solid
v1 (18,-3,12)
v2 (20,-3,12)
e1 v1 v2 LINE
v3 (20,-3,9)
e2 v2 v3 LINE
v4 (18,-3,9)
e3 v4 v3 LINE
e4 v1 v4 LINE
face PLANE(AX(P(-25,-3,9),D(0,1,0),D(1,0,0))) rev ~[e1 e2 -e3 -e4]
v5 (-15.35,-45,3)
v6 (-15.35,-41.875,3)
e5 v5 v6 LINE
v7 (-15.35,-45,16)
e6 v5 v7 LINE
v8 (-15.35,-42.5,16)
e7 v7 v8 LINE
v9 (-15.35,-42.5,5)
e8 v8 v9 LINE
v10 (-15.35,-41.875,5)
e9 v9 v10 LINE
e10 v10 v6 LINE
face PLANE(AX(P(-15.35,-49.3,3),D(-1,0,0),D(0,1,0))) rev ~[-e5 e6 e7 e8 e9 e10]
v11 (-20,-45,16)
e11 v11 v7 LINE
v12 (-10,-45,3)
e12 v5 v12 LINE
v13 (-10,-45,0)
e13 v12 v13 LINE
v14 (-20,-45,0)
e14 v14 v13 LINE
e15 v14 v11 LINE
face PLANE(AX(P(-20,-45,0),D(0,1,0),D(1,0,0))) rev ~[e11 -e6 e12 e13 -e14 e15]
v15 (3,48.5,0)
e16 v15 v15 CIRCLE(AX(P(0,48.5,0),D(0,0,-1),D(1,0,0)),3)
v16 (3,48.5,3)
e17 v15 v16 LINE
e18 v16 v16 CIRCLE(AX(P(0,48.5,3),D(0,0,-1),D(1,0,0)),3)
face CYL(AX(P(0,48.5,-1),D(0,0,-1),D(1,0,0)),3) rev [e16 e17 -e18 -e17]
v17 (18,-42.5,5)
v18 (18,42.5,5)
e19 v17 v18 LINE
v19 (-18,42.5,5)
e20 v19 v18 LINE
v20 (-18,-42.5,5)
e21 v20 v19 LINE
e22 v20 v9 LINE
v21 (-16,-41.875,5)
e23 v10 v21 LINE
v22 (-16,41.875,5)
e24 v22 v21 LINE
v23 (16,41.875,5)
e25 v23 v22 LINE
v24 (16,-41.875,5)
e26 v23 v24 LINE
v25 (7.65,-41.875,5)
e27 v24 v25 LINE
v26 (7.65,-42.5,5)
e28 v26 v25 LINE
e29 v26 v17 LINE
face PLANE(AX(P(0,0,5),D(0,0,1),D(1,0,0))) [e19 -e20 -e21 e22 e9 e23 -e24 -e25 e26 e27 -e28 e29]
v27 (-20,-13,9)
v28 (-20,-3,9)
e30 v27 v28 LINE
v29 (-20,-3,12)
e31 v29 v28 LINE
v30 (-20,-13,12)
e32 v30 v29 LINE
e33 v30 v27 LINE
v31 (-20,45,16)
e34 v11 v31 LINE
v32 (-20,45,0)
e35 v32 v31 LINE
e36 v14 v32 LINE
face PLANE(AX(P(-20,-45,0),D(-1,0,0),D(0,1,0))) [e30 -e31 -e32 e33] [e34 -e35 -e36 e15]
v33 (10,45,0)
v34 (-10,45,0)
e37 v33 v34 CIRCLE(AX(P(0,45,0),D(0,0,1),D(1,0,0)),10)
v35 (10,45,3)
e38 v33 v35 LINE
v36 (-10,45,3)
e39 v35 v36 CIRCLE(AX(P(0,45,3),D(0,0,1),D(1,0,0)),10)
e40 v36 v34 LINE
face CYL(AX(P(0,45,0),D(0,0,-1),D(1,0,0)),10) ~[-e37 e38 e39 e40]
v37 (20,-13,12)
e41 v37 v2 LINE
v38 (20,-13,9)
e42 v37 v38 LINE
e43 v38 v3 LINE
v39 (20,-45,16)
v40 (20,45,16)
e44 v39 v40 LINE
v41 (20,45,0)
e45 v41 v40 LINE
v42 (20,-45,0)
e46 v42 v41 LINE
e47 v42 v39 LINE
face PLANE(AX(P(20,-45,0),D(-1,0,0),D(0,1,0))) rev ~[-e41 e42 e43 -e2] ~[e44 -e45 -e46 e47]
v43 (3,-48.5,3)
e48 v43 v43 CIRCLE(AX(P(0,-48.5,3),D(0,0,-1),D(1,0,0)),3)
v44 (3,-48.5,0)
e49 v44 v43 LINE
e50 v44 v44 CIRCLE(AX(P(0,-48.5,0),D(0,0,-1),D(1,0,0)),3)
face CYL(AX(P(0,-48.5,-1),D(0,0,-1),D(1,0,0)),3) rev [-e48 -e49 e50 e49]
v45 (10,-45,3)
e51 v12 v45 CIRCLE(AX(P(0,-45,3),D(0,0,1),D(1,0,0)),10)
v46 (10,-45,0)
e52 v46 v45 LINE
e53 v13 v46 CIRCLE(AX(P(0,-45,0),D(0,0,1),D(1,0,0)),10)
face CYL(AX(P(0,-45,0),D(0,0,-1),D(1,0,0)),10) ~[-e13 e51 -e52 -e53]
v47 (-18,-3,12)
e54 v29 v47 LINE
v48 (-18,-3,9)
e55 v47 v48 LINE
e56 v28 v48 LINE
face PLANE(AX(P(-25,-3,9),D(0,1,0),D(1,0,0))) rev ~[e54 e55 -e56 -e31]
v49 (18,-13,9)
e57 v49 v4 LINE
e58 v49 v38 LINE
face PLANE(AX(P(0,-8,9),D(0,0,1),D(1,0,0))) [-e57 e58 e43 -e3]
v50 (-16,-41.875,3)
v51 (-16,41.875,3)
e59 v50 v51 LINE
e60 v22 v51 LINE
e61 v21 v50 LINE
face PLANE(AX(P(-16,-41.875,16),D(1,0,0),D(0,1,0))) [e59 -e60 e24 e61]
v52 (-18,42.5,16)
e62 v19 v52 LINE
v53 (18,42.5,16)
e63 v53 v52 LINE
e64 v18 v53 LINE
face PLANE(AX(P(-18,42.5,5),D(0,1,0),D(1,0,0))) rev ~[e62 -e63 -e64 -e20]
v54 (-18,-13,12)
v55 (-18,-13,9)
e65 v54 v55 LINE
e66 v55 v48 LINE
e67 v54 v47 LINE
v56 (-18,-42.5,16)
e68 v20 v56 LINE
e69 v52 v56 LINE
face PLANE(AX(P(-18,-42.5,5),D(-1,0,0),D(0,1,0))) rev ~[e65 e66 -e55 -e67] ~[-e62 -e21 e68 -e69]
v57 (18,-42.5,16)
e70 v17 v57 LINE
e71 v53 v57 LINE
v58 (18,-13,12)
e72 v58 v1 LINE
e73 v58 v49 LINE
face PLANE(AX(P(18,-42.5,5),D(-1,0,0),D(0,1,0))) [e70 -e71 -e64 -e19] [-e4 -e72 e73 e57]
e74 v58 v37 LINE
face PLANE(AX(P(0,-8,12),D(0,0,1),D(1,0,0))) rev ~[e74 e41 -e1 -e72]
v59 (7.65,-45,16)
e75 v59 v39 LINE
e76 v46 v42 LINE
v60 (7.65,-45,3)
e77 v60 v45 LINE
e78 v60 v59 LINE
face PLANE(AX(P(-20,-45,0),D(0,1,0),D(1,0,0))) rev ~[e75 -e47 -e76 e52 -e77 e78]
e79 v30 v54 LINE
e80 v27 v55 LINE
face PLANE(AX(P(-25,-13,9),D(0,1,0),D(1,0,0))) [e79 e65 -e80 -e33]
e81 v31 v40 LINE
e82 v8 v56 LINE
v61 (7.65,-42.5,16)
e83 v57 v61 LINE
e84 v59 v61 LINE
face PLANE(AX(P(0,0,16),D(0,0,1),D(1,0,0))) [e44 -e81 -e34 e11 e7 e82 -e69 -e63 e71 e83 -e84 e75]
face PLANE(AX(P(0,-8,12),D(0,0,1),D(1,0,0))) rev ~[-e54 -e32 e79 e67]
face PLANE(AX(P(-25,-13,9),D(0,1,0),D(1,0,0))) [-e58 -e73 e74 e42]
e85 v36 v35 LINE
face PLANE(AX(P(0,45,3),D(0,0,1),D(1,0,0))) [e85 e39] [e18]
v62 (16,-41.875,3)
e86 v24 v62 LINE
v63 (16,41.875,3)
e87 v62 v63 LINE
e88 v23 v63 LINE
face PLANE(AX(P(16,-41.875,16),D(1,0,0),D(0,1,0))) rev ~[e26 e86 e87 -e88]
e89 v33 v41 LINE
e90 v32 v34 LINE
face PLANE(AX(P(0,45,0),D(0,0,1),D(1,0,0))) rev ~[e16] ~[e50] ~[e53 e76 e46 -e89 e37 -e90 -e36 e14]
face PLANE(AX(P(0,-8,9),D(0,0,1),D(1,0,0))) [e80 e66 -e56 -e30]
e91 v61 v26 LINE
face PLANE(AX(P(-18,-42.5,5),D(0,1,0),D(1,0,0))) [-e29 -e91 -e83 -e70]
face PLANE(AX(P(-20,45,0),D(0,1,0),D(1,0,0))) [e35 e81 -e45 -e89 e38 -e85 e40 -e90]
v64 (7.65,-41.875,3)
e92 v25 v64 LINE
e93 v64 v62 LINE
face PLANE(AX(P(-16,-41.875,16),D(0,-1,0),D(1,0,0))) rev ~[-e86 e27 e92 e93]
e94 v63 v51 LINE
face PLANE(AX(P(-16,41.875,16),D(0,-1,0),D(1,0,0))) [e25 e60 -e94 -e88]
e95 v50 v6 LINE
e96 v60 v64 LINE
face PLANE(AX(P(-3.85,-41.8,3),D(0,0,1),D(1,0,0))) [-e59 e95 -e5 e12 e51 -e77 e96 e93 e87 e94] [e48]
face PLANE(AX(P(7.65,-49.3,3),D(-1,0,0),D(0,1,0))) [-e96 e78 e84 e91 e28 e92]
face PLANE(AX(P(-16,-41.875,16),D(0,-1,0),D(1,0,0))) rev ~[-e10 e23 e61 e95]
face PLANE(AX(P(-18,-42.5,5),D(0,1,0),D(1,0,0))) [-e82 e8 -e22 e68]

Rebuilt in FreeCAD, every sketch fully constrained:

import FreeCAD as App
import Part
import Sketcher

V = App.Vector


def add_polygon(sketch, points):
    """Adds a closed chain of lines whose ends are joined by coincident constraints."""
    first, n = sketch.GeometryCount, len(points)
    for a, b in zip(points, points[1:] + points[:1]):
        sketch.addGeometry(Part.LineSegment(App.Vector(*a, 0), App.Vector(*b, 0)), False)
    for i in range(n):
        sketch.addConstraint(Sketcher.Constraint("Coincident", first + i, 2, first + (i + 1) % n, 1))

doc = App.newDocument("Part")
body = doc.addObject("PartDesign::Body", "Body")

# Sketch on XY plane
sketch1 = body.newObject("Sketcher::SketchObject", "Sketch")
sketch1.AttachmentSupport = (doc.getObject("XY_Plane"), [""])
sketch1.MapMode = "FlatFace"
sketch1.AttachmentOffset = App.Placement(V(0, 0, 9), App.Rotation())
add_polygon(sketch1, [(-25, -3), (-25, -13), (25, -13), (25, -3)])  # lines 0-3
sketch1.addConstraint(Sketcher.Constraint("Vertical", 0))
sketch1.addConstraint(Sketcher.Constraint("Horizontal", 1))
sketch1.addConstraint(Sketcher.Constraint("Vertical", 2))
sketch1.addConstraint(Sketcher.Constraint("Horizontal", 3))
sketch1.addConstraint(Sketcher.Constraint("DistanceX", 1, 1, 1, 2, 50.0))
sketch1.addConstraint(Sketcher.Constraint("DistanceY", 0, 2, 0, 1, 10.0))
sketch1.addConstraint(Sketcher.Constraint("DistanceX", 0, 2, -1, 1, 25.0))
sketch1.addConstraint(Sketcher.Constraint("DistanceY", 0, 2, -1, 1, 13.0))
pad1 = body.newObject("PartDesign::Pad", "Pad")
pad1.Profile = sketch1
pad1.Length = 3
body2 = doc.addObject("PartDesign::Body", "Body001")

# Sketch on XY plane
sketch2 = body2.newObject("Sketcher::SketchObject", "Sketch001")
sketch2.AttachmentSupport = (doc.getObject("XY_Plane001"), [""])
sketch2.MapMode = "FlatFace"
sketch2.AttachmentOffset = App.Placement(V(0, 0, -1), App.Rotation())
sketch2.addGeometry(Part.Circle(V(0, -48.5, 0), V(0, 0, 1), 3), False)
sketch2.addConstraint(Sketcher.Constraint("PointOnObject", 0, 3, -2))
sketch2.addConstraint(Sketcher.Constraint("Diameter", 0, 6.0))
sketch2.addConstraint(Sketcher.Constraint("DistanceY", 0, 3, -1, 1, 48.5))
pad2 = body2.newObject("PartDesign::Pad", "Pad001")
pad2.Profile = sketch2
pad2.Length = 5
body3 = doc.addObject("PartDesign::Body", "Body002")

# Sketch on XY plane
sketch3 = body3.newObject("Sketcher::SketchObject", "Sketch002")
sketch3.AttachmentSupport = (doc.getObject("XY_Plane002"), [""])
sketch3.MapMode = "FlatFace"
sketch3.addGeometry(Part.Circle(V(0, -45, 0), V(0, 0, 1), 10), False)
sketch3.addConstraint(Sketcher.Constraint("PointOnObject", 0, 3, -2))
sketch3.addConstraint(Sketcher.Constraint("Diameter", 0, 20.0))
sketch3.addConstraint(Sketcher.Constraint("DistanceY", 0, 3, -1, 1, 45.0))
pad3 = body3.newObject("PartDesign::Pad", "Pad002")
pad3.Profile = sketch3
pad3.Length = 3
doc.recompute()

boolean = body3.newObject("PartDesign::Boolean", "Boolean")
boolean.Type = "Cut"
boolean.addObjects([body2])
body4 = doc.addObject("PartDesign::Body", "Body003")

# Sketch on XY plane
sketch4 = body4.newObject("Sketcher::SketchObject", "Sketch003")
sketch4.AttachmentSupport = (doc.getObject("XY_Plane003"), [""])
sketch4.MapMode = "FlatFace"
sketch4.AttachmentOffset = App.Placement(V(0, 0, -1), App.Rotation())
sketch4.addGeometry(Part.Circle(V(0, 48.5, 0), V(0, 0, 1), 3), False)
sketch4.addConstraint(Sketcher.Constraint("PointOnObject", 0, 3, -2))
sketch4.addConstraint(Sketcher.Constraint("Diameter", 0, 6.0))
sketch4.addConstraint(Sketcher.Constraint("DistanceY", -1, 1, 0, 3, 48.5))
pad4 = body4.newObject("PartDesign::Pad", "Pad003")
pad4.Profile = sketch4
pad4.Length = 5
body5 = doc.addObject("PartDesign::Body", "Body004")

# Sketch on XY plane
sketch5 = body5.newObject("Sketcher::SketchObject", "Sketch004")
sketch5.AttachmentSupport = (doc.getObject("XY_Plane004"), [""])
sketch5.MapMode = "FlatFace"
sketch5.addGeometry(Part.Circle(V(0, 45, 0), V(0, 0, 1), 10), False)
sketch5.addConstraint(Sketcher.Constraint("PointOnObject", 0, 3, -2))
sketch5.addConstraint(Sketcher.Constraint("Diameter", 0, 20.0))
sketch5.addConstraint(Sketcher.Constraint("DistanceY", -1, 1, 0, 3, 45.0))
pad5 = body5.newObject("PartDesign::Pad", "Pad004")
pad5.Profile = sketch5
pad5.Length = 3
doc.recompute()

boolean2 = body5.newObject("PartDesign::Boolean", "Boolean001")
boolean2.Type = "Cut"
boolean2.addObjects([body4])
body6 = doc.addObject("PartDesign::Body", "Body005")

# Sketch on XY plane
sketch6 = body6.newObject("Sketcher::SketchObject", "Sketch005")
sketch6.AttachmentSupport = (doc.getObject("XY_Plane005"), [""])
sketch6.MapMode = "FlatFace"
sketch6.AttachmentOffset = App.Placement(V(0, 0, 5), App.Rotation())
add_polygon(sketch6, [(-18, 42), (-18, -42), (18, -42), (18, 42)])  # lines 0-3
sketch6.addConstraint(Sketcher.Constraint("Vertical", 0))
sketch6.addConstraint(Sketcher.Constraint("Horizontal", 1))
sketch6.addConstraint(Sketcher.Constraint("Vertical", 2))
sketch6.addConstraint(Sketcher.Constraint("Horizontal", 3))
sketch6.addConstraint(Sketcher.Constraint("Symmetric", 0, 2, 2, 2, -1, 1))
sketch6.addConstraint(Sketcher.Constraint("DistanceX", 1, 1, 1, 2, 36.0))
sketch6.addConstraint(Sketcher.Constraint("DistanceY", 0, 2, 0, 1, 85.0))
pad6 = body6.newObject("PartDesign::Pad", "Pad005")
pad6.Profile = sketch6
pad6.Length = 15
body7 = doc.addObject("PartDesign::Body", "Body006")

# Sketch on XY plane
sketch7 = body7.newObject("Sketcher::SketchObject", "Sketch006")
sketch7.AttachmentSupport = (doc.getObject("XY_Plane006"), [""])
sketch7.MapMode = "FlatFace"
sketch7.AttachmentOffset = App.Placement(V(0, 0, 3), App.Rotation())
add_polygon(sketch7, [(-15, -34), (-15, -49), (8, -49), (8, -34)])  # lines 0-3
sketch7.addConstraint(Sketcher.Constraint("Vertical", 0))
sketch7.addConstraint(Sketcher.Constraint("Horizontal", 1))
sketch7.addConstraint(Sketcher.Constraint("Vertical", 2))
sketch7.addConstraint(Sketcher.Constraint("Horizontal", 3))
sketch7.addConstraint(Sketcher.Constraint("DistanceX", 1, 1, 1, 2, 23.0))
sketch7.addConstraint(Sketcher.Constraint("DistanceY", 0, 2, 0, 1, 15.0))
sketch7.addConstraint(Sketcher.Constraint("DistanceY", 0, 2, -1, 1, 49.3))
sketch7.addConstraint(Sketcher.Constraint("DistanceX", 0, 2, -1, 1, 15.35))
pad7 = body7.newObject("PartDesign::Pad", "Pad006")
pad7.Profile = sketch7
pad7.Length = 13
body8 = doc.addObject("PartDesign::Body", "Body007")

# Sketch on XY plane
sketch8 = body8.newObject("Sketcher::SketchObject", "Sketch007")
sketch8.AttachmentSupport = (doc.getObject("XY_Plane007"), [""])
sketch8.MapMode = "FlatFace"
add_polygon(sketch8, [(-20, 45), (-20, -45), (20, -45), (20, 45)])  # lines 0-3
sketch8.addConstraint(Sketcher.Constraint("Vertical", 0))
sketch8.addConstraint(Sketcher.Constraint("Horizontal", 1))
sketch8.addConstraint(Sketcher.Constraint("Vertical", 2))
sketch8.addConstraint(Sketcher.Constraint("Horizontal", 3))
sketch8.addConstraint(Sketcher.Constraint("Symmetric", 0, 2, 2, 2, -1, 1))
sketch8.addConstraint(Sketcher.Constraint("DistanceX", 1, 1, 1, 2, 40.0))
sketch8.addConstraint(Sketcher.Constraint("DistanceY", 0, 2, 0, 1, 90.0))
pad8 = body8.newObject("PartDesign::Pad", "Pad007")
pad8.Profile = sketch8
pad8.Length = 16

# Sketch on XY plane
sketch9 = body8.newObject("Sketcher::SketchObject", "Sketch008")
sketch9.AttachmentSupport = (doc.getObject("XY_Plane007"), [""])
sketch9.MapMode = "FlatFace"
sketch9.AttachmentOffset = App.Placement(V(0, 0, 16), App.Rotation())
add_polygon(sketch9, [(-16, 42), (-16, -42), (16, -42), (16, 42)])  # lines 0-3
sketch9.addConstraint(Sketcher.Constraint("Vertical", 0))
sketch9.addConstraint(Sketcher.Constraint("Horizontal", 1))
sketch9.addConstraint(Sketcher.Constraint("Vertical", 2))
sketch9.addConstraint(Sketcher.Constraint("Horizontal", 3))
sketch9.addConstraint(Sketcher.Constraint("Symmetric", 0, 2, 2, 2, -1, 1))
sketch9.addConstraint(Sketcher.Constraint("DistanceX", 1, 1, 1, 2, 32.0))
sketch9.addConstraint(Sketcher.Constraint("DistanceY", 0, 2, 0, 1, 83.75))
pocket1 = body8.newObject("PartDesign::Pocket", "Pocket")
pocket1.Profile = sketch9
pocket1.Length = 13
doc.recompute()

boolean3 = body8.newObject("PartDesign::Boolean", "Boolean002")
boolean3.Type = "Cut"
boolean3.addObjects([body7])
doc.recompute()

boolean4 = body8.newObject("PartDesign::Boolean", "Boolean003")
boolean4.Type = "Cut"
boolean4.addObjects([body6])
doc.recompute()

boolean5 = body8.newObject("PartDesign::Boolean", "Boolean004")
boolean5.Type = "Fuse"
boolean5.addObjects([body3])
doc.recompute()

boolean6 = body8.newObject("PartDesign::Boolean", "Boolean005")
boolean6.Type = "Fuse"
boolean6.addObjects([body5])
doc.recompute()

boolean7 = body8.newObject("PartDesign::Boolean", "Boolean006")
boolean7.Type = "Cut"
boolean7.addObjects([body])

doc.recompute()
